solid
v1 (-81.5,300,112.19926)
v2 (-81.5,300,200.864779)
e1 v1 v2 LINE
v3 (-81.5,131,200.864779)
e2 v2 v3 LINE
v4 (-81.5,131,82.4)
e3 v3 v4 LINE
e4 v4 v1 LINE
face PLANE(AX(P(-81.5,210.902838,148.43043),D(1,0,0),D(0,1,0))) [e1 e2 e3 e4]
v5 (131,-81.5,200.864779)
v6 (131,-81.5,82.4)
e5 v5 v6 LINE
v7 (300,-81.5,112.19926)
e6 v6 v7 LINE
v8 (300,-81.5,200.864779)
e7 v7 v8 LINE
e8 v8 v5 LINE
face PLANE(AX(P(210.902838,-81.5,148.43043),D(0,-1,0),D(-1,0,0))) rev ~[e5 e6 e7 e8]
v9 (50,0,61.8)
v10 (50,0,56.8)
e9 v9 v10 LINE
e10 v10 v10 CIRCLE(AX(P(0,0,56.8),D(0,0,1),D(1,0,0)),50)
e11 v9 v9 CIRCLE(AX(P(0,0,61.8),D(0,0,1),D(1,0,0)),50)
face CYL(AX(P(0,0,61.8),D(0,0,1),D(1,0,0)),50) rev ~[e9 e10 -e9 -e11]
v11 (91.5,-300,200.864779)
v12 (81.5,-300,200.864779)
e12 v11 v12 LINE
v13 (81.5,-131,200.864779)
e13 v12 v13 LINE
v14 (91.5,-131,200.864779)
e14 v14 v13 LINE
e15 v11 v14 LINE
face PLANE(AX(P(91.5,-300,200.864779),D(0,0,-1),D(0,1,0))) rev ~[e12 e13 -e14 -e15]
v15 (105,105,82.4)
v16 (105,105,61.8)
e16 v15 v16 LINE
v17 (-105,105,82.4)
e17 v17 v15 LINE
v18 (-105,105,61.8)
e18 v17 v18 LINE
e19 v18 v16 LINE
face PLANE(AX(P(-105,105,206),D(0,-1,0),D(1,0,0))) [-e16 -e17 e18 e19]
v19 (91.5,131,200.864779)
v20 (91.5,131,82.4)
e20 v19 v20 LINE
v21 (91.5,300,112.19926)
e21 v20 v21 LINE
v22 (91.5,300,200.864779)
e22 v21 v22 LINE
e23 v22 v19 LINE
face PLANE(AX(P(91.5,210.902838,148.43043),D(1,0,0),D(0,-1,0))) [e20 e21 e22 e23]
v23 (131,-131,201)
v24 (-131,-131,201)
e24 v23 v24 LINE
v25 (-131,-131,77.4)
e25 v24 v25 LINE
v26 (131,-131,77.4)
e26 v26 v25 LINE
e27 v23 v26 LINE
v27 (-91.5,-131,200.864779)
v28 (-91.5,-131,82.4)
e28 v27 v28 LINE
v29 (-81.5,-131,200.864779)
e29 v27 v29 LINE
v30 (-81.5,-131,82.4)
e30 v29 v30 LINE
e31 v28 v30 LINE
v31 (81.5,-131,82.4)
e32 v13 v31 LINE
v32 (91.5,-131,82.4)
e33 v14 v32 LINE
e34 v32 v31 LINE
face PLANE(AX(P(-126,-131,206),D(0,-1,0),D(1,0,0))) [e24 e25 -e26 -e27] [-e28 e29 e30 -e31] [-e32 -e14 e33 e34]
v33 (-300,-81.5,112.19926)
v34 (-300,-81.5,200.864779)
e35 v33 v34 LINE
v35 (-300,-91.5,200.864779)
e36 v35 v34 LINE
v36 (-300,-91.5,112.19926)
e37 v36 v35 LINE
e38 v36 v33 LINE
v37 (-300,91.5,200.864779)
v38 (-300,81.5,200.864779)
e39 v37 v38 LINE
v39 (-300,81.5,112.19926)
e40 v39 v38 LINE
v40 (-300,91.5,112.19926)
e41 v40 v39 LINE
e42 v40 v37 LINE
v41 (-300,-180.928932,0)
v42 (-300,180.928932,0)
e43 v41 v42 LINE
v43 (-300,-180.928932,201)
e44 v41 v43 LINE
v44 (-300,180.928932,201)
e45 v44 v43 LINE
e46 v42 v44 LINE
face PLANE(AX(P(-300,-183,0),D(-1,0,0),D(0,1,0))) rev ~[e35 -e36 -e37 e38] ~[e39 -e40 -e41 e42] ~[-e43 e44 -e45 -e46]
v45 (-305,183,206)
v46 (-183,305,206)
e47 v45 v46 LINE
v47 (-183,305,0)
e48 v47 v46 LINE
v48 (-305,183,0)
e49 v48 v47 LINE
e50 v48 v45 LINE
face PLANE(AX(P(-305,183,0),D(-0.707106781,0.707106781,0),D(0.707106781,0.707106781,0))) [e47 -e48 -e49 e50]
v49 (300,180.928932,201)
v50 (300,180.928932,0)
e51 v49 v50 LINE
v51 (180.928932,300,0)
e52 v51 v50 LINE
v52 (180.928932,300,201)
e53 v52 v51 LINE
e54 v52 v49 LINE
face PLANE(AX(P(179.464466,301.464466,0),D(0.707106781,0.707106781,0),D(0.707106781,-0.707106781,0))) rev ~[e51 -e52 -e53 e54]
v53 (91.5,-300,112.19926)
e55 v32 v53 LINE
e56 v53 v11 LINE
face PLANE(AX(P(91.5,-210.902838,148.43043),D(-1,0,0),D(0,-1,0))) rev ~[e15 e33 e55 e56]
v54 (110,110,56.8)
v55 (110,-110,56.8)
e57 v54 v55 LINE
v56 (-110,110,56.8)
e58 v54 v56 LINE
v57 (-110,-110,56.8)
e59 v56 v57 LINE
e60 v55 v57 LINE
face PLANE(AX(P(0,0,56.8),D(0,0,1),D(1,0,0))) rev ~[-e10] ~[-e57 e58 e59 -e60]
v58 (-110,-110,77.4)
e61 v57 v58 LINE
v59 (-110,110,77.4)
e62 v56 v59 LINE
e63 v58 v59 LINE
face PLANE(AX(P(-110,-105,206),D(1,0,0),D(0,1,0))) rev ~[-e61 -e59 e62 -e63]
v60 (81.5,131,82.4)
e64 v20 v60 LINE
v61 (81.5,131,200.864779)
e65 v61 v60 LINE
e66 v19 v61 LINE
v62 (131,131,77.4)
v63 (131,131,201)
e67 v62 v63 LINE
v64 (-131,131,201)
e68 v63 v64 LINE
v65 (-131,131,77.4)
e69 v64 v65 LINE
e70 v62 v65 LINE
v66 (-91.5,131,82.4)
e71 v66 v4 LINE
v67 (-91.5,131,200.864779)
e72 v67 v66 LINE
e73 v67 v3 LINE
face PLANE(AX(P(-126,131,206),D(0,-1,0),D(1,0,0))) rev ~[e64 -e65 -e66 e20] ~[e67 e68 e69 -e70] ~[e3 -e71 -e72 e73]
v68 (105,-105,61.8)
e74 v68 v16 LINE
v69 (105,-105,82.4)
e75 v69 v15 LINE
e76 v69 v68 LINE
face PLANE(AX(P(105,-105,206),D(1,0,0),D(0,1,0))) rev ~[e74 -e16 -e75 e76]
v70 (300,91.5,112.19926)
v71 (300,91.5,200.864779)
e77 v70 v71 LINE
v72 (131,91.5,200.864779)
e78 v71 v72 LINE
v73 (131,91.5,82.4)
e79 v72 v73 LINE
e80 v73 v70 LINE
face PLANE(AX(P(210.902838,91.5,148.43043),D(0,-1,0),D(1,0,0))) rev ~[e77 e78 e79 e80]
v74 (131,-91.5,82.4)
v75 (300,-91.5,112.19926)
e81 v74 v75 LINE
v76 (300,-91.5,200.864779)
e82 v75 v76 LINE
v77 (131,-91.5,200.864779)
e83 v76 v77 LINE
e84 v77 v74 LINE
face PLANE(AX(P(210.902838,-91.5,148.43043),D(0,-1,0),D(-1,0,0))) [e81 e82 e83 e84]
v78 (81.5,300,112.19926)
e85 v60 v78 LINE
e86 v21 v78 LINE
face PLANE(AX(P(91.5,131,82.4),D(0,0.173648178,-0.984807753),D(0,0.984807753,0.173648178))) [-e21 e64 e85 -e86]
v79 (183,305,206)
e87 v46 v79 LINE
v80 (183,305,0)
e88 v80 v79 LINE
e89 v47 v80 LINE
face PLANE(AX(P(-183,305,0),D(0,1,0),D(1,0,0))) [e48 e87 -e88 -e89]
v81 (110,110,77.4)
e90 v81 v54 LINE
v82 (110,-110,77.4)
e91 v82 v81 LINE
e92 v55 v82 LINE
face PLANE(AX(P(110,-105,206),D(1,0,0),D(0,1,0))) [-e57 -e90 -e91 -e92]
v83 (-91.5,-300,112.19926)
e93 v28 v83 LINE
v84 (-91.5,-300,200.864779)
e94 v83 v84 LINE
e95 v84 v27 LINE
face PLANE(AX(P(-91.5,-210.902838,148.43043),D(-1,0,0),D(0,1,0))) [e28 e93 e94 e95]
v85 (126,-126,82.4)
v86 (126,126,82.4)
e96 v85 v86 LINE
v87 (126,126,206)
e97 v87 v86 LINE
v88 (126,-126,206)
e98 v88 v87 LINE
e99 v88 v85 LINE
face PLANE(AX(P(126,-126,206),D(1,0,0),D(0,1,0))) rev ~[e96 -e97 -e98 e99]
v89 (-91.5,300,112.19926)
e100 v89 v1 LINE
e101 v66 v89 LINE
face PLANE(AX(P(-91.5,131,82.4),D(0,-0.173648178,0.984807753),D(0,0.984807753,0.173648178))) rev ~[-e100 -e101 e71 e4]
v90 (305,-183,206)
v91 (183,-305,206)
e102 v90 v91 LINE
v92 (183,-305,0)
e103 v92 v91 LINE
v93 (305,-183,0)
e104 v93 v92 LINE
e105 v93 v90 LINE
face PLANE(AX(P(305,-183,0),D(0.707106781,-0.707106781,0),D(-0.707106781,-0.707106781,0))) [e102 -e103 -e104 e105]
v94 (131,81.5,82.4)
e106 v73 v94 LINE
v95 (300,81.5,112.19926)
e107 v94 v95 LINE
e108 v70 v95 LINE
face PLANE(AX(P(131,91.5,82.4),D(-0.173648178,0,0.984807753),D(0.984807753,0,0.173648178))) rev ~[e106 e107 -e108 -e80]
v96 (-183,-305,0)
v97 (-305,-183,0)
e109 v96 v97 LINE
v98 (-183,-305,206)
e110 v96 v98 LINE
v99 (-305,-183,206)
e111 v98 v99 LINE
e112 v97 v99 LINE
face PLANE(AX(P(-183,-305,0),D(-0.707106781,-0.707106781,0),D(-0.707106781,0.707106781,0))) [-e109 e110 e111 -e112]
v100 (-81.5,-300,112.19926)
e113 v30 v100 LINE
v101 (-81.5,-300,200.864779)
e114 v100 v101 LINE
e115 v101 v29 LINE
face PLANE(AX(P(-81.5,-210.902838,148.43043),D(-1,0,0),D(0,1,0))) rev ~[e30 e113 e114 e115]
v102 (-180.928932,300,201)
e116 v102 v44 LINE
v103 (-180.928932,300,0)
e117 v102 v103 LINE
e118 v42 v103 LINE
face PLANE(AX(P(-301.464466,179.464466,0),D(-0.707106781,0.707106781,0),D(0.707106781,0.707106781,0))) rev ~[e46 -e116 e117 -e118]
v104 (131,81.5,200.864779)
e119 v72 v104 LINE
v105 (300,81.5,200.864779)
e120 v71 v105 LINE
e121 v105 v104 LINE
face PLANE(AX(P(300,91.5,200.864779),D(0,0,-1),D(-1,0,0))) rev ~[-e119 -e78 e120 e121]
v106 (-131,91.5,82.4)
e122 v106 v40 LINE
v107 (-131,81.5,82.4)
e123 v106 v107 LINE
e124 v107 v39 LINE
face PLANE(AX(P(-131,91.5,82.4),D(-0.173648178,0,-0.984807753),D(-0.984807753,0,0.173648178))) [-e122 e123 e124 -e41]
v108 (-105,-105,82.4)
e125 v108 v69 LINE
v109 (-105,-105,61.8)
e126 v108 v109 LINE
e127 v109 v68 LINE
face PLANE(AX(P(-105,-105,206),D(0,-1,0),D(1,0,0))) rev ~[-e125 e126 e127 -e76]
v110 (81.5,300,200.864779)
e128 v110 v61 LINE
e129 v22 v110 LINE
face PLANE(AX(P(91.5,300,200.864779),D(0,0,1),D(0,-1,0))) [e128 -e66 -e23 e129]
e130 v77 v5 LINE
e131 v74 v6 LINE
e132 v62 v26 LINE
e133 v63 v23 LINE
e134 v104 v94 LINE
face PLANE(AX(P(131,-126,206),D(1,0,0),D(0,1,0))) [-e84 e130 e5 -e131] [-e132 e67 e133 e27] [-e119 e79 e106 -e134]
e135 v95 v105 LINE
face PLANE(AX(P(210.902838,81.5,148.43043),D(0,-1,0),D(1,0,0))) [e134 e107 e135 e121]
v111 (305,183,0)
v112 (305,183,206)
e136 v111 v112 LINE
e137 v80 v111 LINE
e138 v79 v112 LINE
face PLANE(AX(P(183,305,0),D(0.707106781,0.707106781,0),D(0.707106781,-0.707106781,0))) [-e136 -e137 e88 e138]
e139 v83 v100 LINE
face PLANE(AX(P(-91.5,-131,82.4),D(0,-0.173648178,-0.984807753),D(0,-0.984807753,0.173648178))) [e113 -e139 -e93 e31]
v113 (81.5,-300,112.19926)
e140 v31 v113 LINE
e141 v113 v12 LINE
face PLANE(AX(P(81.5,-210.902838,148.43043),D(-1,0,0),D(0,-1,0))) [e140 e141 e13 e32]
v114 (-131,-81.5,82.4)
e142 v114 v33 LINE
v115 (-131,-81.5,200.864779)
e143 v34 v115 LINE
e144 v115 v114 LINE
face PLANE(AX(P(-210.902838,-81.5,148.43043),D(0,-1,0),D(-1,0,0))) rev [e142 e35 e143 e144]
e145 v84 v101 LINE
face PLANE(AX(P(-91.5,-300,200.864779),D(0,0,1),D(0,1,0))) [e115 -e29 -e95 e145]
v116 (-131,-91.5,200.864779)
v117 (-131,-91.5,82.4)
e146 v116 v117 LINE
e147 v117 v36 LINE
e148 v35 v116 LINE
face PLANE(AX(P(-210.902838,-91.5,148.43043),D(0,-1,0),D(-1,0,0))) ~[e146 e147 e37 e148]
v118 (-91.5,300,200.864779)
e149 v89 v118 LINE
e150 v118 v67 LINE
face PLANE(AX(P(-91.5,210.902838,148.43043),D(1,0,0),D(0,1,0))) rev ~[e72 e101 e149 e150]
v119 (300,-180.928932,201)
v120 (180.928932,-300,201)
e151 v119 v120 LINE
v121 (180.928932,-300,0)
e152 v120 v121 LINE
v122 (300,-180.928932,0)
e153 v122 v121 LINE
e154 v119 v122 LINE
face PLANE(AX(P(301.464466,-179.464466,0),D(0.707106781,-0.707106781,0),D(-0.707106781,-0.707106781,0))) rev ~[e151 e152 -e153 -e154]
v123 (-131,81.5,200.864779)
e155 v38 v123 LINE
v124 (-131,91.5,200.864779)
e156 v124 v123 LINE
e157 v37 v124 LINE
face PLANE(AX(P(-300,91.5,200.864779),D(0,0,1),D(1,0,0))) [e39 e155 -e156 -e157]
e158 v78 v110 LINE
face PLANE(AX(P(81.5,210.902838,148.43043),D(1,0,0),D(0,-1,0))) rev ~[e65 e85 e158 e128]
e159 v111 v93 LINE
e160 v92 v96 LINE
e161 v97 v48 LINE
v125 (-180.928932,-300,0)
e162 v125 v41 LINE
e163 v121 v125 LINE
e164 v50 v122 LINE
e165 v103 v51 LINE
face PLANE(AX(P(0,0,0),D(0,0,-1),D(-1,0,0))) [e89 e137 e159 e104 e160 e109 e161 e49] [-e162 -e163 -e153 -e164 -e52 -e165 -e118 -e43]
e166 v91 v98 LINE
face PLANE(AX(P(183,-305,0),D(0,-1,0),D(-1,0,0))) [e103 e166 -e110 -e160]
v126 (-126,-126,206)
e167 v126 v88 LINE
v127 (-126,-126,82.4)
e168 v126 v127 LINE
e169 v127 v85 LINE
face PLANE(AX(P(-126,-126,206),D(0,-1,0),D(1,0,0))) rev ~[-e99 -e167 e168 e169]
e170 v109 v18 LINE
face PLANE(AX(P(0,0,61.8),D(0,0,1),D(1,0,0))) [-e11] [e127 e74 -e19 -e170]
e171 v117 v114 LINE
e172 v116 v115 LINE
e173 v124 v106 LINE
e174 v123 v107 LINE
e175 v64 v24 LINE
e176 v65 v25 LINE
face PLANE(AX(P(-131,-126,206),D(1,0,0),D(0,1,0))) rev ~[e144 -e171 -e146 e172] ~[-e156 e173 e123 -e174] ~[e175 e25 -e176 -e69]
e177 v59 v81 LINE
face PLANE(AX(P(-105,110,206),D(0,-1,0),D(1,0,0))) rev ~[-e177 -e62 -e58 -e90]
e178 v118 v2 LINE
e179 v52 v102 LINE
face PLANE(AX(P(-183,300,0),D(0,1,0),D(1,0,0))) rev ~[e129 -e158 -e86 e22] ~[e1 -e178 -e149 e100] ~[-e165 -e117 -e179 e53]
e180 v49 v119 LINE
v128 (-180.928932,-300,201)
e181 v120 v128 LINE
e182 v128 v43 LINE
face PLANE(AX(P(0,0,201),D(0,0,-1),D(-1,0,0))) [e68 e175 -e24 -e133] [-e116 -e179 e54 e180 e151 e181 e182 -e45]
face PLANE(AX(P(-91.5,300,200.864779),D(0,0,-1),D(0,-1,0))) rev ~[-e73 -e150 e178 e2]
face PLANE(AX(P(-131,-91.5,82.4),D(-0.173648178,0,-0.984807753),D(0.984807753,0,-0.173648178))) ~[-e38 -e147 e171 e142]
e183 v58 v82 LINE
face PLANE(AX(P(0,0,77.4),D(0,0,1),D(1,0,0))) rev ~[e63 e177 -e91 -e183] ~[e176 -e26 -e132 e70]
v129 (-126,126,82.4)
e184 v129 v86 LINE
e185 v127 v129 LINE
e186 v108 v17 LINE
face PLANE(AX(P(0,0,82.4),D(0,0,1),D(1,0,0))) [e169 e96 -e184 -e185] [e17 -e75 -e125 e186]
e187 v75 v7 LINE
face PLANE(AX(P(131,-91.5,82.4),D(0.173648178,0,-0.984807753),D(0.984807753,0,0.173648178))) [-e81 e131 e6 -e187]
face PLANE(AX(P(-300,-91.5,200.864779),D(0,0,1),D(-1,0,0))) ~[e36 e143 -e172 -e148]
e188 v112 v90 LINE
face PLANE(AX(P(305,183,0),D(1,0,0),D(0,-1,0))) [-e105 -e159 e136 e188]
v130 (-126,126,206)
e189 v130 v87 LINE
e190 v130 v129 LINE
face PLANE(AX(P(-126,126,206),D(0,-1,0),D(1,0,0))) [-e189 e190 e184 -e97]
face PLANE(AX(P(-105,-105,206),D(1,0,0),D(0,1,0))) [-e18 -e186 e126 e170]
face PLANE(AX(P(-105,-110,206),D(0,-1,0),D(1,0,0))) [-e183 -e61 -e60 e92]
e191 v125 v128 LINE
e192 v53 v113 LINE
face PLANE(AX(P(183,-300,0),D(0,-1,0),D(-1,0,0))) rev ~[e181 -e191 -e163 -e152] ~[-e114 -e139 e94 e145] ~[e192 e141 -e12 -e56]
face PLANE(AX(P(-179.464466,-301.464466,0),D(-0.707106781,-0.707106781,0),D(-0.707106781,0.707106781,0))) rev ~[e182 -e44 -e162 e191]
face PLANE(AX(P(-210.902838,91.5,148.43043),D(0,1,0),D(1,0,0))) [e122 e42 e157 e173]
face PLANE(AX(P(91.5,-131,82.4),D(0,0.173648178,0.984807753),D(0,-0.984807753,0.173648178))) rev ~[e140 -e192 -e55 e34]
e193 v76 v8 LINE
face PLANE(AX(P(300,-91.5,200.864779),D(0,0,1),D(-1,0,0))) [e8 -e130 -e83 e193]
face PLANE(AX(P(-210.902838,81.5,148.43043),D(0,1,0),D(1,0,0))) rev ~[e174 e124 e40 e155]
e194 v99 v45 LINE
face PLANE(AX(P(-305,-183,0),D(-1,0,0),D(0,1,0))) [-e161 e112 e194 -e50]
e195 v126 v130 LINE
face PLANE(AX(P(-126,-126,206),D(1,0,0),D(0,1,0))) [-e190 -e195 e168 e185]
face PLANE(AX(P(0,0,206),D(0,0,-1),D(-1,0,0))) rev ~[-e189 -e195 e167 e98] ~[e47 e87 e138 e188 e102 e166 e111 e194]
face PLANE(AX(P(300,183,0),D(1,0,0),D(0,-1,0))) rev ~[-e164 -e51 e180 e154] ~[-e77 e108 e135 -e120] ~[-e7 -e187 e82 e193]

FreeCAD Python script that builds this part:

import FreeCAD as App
import Part
import Sketcher
Q = App.Units.Quantity


def faces_at(feature, points):
    """Names of the faces that lie closest to the given points."""
    faces = feature.Shape.Faces
    near = lambda p: min(range(len(faces)), key=lambda i: faces[i].distToShape(Part.Vertex(*p))[0])
    return sorted({f"Face{near(p) + 1}" for p in points})


def add_polygon(sketch, points):
    """Adds a closed chain of lines whose ends are joined by coincident constraints."""
    first, n = sketch.GeometryCount, len(points)
    for a, b in zip(points, points[1:] + points[:1]):
        sketch.addGeometry(Part.LineSegment(App.Vector(*a, 0), App.Vector(*b, 0)), False)
    for i in range(n):
        sketch.addConstraint(Sketcher.Constraint("Coincident", first + i, 2, first + (i + 1) % n, 1))

doc = App.newDocument("Part")
body = doc.addObject("PartDesign::Body", "Body")

sketch1 = body.newObject("Sketcher::SketchObject", "Sketch")
sketch1.AttachmentSupport = (doc.getObject("XY_Plane"), [""])
sketch1.MapMode = "FlatFace"
add_polygon(sketch1, [(-183, 305), (-305, 183), (-305, -183), (-183, -305), (183, -305), (305, -183), (305, 183), (183, 305)])
sketch1.addConstraint([
    Sketcher.Constraint("Vertical", 1),
    Sketcher.Constraint("Horizontal", 3),
    Sketcher.Constraint("Vertical", 5),
    Sketcher.Constraint("Horizontal", 7),
    Sketcher.Constraint("Symmetric", 0, 2, 4, 2, -1, 1),
    Sketcher.Constraint("Symmetric", 2, 2, 6, 2, -1, 1),
    Sketcher.Constraint("Perpendicular", 0, 2),
    Sketcher.Constraint("Perpendicular", 2, 4),
    Sketcher.Constraint("Perpendicular", 4, 6),
    Sketcher.Constraint("Horizontal", 1, 2, 4, 2),
    Sketcher.Constraint("Vertical", 3, 2, 6, 2),
    Sketcher.Constraint("Equal", 7, 1),
    Sketcher.Constraint("DistanceX", 3, 1, 3, 2, 366.0),
    Sketcher.Constraint("DistanceX", 0, 2, -1, 1, 305.0),
])
pad1 = body.newObject("PartDesign::Pad", "Pad")
pad1.Profile = sketch1
pad1.Length = 206

sketch2 = body.newObject("Sketcher::SketchObject", "Sketch001")
sketch2.AttachmentSupport = (doc.getObject("XY_Plane"), [""])
sketch2.MapMode = "FlatFace"
sketch2.AttachmentOffset = App.Placement(App.Vector(0, 0, 206), App.Rotation())
add_polygon(sketch2, [(-126, 126), (-126, -126), (126, -126), (126, 126)])
sketch2.addConstraint([
    Sketcher.Constraint("Vertical", 0),
    Sketcher.Constraint("Horizontal", 1),
    Sketcher.Constraint("Vertical", 2),
    Sketcher.Constraint("Horizontal", 3),
    Sketcher.Constraint("Symmetric", 0, 2, 2, 2, -1, 1),
    Sketcher.Constraint("Equal", 3, 0),
    Sketcher.Constraint("DistanceX", 1, 1, 1, 2, 252.0),
])
pocket1 = body.newObject("PartDesign::Pocket", "Pocket")
pocket1.Profile = sketch2
pocket1.Length = 123.6

sketch3 = body.newObject("Sketcher::SketchObject", "Sketch002")
sketch3.AttachmentSupport = (doc.getObject("XY_Plane"), [""])
sketch3.MapMode = "FlatFace"
sketch3.AttachmentOffset = App.Placement(App.Vector(0, 0, 206), App.Rotation())
add_polygon(sketch3, [(-105, 105), (-105, -105), (105, -105), (105, 105)])
sketch3.addConstraint([
    Sketcher.Constraint("Vertical", 0),
    Sketcher.Constraint("Horizontal", 1),
    Sketcher.Constraint("Vertical", 2),
    Sketcher.Constraint("Horizontal", 3),
    Sketcher.Constraint("Symmetric", 0, 2, 2, 2, -1, 1),
    Sketcher.Constraint("Equal", 3, 0),
    Sketcher.Constraint("DistanceX", 1, 1, 1, 2, 210.0),
])
pocket2 = body.newObject("PartDesign::Pocket", "Pocket001")
pocket2.Profile = sketch3
pocket2.Length = 144.2
doc.recompute()

thickness = body.newObject("PartDesign::Thickness", "Thickness")
thickness.Base = (pocket2, faces_at(pocket2, [(0, 0, 0)]))
thickness.Value = 5
thickness.Reversed = True
thickness.Join = "Intersection"

sketch4 = body.newObject("Sketcher::SketchObject", "Sketch003")
sketch4.AttachmentSupport = (doc.getObject("XY_Plane"), [""])
sketch4.MapMode = "FlatFace"
sketch4.AttachmentOffset = App.Placement(App.Vector(0, 0, 61.8), App.Rotation())
sketch4.addGeometry(Part.Circle(App.Vector(0, 0, 0), App.Vector(0, 0, 1), 50), False)
sketch4.addConstraint([
    Sketcher.Constraint("Coincident", 0, 3, -1, 1),
    Sketcher.Constraint("Diameter", 0, 100.0),
])
pocket3 = body.newObject("PartDesign::Pocket", "Pocket002")
pocket3.Profile = sketch4
pocket3.Type = "ThroughAll"

sketch5 = body.newObject("Sketcher::SketchObject", "Sketch004")
sketch5.AttachmentSupport = (doc.getObject("XZ_Plane"), [""])
sketch5.MapMode = "FlatFace"
sketch5.AttachmentOffset = App.Placement(App.Vector(0, 0, -91.5), App.Rotation())
add_polygon(sketch5, [(-131, 82.4), (-300, 112.19926), (-300, 200.864779), (-131, 200.864779)])
sketch5.addConstraint([
    Sketcher.Constraint("Vertical", 1),
    Sketcher.Constraint("Horizontal", 2),
    Sketcher.Constraint("Vertical", 3),
    Sketcher.Constraint("DistanceX", 2, 1, 2, 2, 169.0),
    Sketcher.Constraint("Angle", 0, Q("170 deg")),
    Sketcher.Constraint("DistanceX", 0, 2, -1, 1, 300.0),
    Sketcher.Constraint("DistanceY", -1, 1, 3, 2, 82.4),
    Sketcher.Constraint("DistanceY", 1, 1, 1, 2, 88.66552),
])
pad2 = body.newObject("PartDesign::Pad", "Pad001")
pad2.Profile = sketch5
pad2.Length = 10
doc.recompute()

mirrored = body.newObject("PartDesign::Mirrored", "Mirrored")
mirrored.Originals = [pad2]
mirrored.MirrorPlane = (doc.getObject("XZ_Plane"), [""])
body.Tip = mirrored
doc.recompute()

polarpattern = body.newObject("PartDesign::PolarPattern", "PolarPattern")
polarpattern.Originals = [pad2]
polarpattern.Axis = (doc.getObject("Z_Axis"), [""])
polarpattern.Angle = 360
polarpattern.Occurrences = 4
body.Tip = polarpattern

sketch6 = body.newObject("Sketcher::SketchObject", "Sketch005")
sketch6.AttachmentSupport = (doc.getObject("YZ_Plane"), [""])
sketch6.MapMode = "FlatFace"
sketch6.AttachmentOffset = App.Placement(App.Vector(0, 0, 91.5), App.Rotation())
add_polygon(sketch6, [(-300, 112.19926), (-131, 82.4), (-131, 200.864779), (-300, 200.864779)])
sketch6.addConstraint([
    Sketcher.Constraint("Vertical", 1),
    Sketcher.Constraint("Horizontal", 2),
    Sketcher.Constraint("Vertical", 3),
    Sketcher.Constraint("DistanceX", 2, 2, 2, 1, 169.0),
    Sketcher.Constraint("Angle", 0, Q("-10 deg")),
    Sketcher.Constraint("DistanceX", 0, 2, -1, 1, 131.0),
    Sketcher.Constraint("DistanceY", -1, 1, 0, 2, 82.4),
    Sketcher.Constraint("DistanceY", 1, 1, 1, 2, 118.464779),
])
pad3 = body.newObject("PartDesign::Pad", "Pad002")
pad3.Profile = sketch6
pad3.Length = 10
pad3.Reversed = True

sketch7 = body.newObject("Sketcher::SketchObject", "Sketch006")
sketch7.AttachmentSupport = (doc.getObject("XZ_Plane"), [""])
sketch7.MapMode = "FlatFace"
sketch7.AttachmentOffset = App.Placement(App.Vector(0, 0, -91.5), App.Rotation())
add_polygon(sketch7, [(300, 112.19926), (131, 82.4), (131, 200.864779), (300, 200.864779)])
sketch7.addConstraint([
    Sketcher.Constraint("Vertical", 1),
    Sketcher.Constraint("Horizontal", 2),
    Sketcher.Constraint("Vertical", 3),
    Sketcher.Constraint("DistanceX", 2, 1, 2, 2, 169.0),
    Sketcher.Constraint("Angle", 0, Q("-170 deg")),
    Sketcher.Constraint("DistanceX", -1, 1, 0, 2, 131.0),
    Sketcher.Constraint("DistanceY", -1, 1, 0, 2, 82.4),
    Sketcher.Constraint("DistanceY", 1, 1, 1, 2, 118.464779),
])
pad4 = body.newObject("PartDesign::Pad", "Pad003")
pad4.Profile = sketch7
pad4.Length = 10

sketch8 = body.newObject("Sketcher::SketchObject", "Sketch007")
sketch8.AttachmentSupport = (doc.getObject("YZ_Plane"), [""])
sketch8.MapMode = "FlatFace"
sketch8.AttachmentOffset = App.Placement(App.Vector(0, 0, -91.5), App.Rotation())
add_polygon(sketch8, [(300, 112.19926), (131, 82.4), (131, 200.864779), (300, 200.864779)])
sketch8.addConstraint([
    Sketcher.Constraint("Vertical", 1),
    Sketcher.Constraint("Horizontal", 2),
    Sketcher.Constraint("Vertical", 3),
    Sketcher.Constraint("DistanceX", 2, 1, 2, 2, 169.0),
    Sketcher.Constraint("Angle", 0, Q("-170 deg")),
    Sketcher.Constraint("DistanceX", -1, 1, 0, 2, 131.0),
    Sketcher.Constraint("DistanceY", -1, 1, 0, 2, 82.4),
    Sketcher.Constraint("DistanceY", 1, 1, 1, 2, 118.464779),
])
pad5 = body.newObject("PartDesign::Pad", "Pad004")
pad5.Profile = sketch8
pad5.Length = 10

doc.recompute()
